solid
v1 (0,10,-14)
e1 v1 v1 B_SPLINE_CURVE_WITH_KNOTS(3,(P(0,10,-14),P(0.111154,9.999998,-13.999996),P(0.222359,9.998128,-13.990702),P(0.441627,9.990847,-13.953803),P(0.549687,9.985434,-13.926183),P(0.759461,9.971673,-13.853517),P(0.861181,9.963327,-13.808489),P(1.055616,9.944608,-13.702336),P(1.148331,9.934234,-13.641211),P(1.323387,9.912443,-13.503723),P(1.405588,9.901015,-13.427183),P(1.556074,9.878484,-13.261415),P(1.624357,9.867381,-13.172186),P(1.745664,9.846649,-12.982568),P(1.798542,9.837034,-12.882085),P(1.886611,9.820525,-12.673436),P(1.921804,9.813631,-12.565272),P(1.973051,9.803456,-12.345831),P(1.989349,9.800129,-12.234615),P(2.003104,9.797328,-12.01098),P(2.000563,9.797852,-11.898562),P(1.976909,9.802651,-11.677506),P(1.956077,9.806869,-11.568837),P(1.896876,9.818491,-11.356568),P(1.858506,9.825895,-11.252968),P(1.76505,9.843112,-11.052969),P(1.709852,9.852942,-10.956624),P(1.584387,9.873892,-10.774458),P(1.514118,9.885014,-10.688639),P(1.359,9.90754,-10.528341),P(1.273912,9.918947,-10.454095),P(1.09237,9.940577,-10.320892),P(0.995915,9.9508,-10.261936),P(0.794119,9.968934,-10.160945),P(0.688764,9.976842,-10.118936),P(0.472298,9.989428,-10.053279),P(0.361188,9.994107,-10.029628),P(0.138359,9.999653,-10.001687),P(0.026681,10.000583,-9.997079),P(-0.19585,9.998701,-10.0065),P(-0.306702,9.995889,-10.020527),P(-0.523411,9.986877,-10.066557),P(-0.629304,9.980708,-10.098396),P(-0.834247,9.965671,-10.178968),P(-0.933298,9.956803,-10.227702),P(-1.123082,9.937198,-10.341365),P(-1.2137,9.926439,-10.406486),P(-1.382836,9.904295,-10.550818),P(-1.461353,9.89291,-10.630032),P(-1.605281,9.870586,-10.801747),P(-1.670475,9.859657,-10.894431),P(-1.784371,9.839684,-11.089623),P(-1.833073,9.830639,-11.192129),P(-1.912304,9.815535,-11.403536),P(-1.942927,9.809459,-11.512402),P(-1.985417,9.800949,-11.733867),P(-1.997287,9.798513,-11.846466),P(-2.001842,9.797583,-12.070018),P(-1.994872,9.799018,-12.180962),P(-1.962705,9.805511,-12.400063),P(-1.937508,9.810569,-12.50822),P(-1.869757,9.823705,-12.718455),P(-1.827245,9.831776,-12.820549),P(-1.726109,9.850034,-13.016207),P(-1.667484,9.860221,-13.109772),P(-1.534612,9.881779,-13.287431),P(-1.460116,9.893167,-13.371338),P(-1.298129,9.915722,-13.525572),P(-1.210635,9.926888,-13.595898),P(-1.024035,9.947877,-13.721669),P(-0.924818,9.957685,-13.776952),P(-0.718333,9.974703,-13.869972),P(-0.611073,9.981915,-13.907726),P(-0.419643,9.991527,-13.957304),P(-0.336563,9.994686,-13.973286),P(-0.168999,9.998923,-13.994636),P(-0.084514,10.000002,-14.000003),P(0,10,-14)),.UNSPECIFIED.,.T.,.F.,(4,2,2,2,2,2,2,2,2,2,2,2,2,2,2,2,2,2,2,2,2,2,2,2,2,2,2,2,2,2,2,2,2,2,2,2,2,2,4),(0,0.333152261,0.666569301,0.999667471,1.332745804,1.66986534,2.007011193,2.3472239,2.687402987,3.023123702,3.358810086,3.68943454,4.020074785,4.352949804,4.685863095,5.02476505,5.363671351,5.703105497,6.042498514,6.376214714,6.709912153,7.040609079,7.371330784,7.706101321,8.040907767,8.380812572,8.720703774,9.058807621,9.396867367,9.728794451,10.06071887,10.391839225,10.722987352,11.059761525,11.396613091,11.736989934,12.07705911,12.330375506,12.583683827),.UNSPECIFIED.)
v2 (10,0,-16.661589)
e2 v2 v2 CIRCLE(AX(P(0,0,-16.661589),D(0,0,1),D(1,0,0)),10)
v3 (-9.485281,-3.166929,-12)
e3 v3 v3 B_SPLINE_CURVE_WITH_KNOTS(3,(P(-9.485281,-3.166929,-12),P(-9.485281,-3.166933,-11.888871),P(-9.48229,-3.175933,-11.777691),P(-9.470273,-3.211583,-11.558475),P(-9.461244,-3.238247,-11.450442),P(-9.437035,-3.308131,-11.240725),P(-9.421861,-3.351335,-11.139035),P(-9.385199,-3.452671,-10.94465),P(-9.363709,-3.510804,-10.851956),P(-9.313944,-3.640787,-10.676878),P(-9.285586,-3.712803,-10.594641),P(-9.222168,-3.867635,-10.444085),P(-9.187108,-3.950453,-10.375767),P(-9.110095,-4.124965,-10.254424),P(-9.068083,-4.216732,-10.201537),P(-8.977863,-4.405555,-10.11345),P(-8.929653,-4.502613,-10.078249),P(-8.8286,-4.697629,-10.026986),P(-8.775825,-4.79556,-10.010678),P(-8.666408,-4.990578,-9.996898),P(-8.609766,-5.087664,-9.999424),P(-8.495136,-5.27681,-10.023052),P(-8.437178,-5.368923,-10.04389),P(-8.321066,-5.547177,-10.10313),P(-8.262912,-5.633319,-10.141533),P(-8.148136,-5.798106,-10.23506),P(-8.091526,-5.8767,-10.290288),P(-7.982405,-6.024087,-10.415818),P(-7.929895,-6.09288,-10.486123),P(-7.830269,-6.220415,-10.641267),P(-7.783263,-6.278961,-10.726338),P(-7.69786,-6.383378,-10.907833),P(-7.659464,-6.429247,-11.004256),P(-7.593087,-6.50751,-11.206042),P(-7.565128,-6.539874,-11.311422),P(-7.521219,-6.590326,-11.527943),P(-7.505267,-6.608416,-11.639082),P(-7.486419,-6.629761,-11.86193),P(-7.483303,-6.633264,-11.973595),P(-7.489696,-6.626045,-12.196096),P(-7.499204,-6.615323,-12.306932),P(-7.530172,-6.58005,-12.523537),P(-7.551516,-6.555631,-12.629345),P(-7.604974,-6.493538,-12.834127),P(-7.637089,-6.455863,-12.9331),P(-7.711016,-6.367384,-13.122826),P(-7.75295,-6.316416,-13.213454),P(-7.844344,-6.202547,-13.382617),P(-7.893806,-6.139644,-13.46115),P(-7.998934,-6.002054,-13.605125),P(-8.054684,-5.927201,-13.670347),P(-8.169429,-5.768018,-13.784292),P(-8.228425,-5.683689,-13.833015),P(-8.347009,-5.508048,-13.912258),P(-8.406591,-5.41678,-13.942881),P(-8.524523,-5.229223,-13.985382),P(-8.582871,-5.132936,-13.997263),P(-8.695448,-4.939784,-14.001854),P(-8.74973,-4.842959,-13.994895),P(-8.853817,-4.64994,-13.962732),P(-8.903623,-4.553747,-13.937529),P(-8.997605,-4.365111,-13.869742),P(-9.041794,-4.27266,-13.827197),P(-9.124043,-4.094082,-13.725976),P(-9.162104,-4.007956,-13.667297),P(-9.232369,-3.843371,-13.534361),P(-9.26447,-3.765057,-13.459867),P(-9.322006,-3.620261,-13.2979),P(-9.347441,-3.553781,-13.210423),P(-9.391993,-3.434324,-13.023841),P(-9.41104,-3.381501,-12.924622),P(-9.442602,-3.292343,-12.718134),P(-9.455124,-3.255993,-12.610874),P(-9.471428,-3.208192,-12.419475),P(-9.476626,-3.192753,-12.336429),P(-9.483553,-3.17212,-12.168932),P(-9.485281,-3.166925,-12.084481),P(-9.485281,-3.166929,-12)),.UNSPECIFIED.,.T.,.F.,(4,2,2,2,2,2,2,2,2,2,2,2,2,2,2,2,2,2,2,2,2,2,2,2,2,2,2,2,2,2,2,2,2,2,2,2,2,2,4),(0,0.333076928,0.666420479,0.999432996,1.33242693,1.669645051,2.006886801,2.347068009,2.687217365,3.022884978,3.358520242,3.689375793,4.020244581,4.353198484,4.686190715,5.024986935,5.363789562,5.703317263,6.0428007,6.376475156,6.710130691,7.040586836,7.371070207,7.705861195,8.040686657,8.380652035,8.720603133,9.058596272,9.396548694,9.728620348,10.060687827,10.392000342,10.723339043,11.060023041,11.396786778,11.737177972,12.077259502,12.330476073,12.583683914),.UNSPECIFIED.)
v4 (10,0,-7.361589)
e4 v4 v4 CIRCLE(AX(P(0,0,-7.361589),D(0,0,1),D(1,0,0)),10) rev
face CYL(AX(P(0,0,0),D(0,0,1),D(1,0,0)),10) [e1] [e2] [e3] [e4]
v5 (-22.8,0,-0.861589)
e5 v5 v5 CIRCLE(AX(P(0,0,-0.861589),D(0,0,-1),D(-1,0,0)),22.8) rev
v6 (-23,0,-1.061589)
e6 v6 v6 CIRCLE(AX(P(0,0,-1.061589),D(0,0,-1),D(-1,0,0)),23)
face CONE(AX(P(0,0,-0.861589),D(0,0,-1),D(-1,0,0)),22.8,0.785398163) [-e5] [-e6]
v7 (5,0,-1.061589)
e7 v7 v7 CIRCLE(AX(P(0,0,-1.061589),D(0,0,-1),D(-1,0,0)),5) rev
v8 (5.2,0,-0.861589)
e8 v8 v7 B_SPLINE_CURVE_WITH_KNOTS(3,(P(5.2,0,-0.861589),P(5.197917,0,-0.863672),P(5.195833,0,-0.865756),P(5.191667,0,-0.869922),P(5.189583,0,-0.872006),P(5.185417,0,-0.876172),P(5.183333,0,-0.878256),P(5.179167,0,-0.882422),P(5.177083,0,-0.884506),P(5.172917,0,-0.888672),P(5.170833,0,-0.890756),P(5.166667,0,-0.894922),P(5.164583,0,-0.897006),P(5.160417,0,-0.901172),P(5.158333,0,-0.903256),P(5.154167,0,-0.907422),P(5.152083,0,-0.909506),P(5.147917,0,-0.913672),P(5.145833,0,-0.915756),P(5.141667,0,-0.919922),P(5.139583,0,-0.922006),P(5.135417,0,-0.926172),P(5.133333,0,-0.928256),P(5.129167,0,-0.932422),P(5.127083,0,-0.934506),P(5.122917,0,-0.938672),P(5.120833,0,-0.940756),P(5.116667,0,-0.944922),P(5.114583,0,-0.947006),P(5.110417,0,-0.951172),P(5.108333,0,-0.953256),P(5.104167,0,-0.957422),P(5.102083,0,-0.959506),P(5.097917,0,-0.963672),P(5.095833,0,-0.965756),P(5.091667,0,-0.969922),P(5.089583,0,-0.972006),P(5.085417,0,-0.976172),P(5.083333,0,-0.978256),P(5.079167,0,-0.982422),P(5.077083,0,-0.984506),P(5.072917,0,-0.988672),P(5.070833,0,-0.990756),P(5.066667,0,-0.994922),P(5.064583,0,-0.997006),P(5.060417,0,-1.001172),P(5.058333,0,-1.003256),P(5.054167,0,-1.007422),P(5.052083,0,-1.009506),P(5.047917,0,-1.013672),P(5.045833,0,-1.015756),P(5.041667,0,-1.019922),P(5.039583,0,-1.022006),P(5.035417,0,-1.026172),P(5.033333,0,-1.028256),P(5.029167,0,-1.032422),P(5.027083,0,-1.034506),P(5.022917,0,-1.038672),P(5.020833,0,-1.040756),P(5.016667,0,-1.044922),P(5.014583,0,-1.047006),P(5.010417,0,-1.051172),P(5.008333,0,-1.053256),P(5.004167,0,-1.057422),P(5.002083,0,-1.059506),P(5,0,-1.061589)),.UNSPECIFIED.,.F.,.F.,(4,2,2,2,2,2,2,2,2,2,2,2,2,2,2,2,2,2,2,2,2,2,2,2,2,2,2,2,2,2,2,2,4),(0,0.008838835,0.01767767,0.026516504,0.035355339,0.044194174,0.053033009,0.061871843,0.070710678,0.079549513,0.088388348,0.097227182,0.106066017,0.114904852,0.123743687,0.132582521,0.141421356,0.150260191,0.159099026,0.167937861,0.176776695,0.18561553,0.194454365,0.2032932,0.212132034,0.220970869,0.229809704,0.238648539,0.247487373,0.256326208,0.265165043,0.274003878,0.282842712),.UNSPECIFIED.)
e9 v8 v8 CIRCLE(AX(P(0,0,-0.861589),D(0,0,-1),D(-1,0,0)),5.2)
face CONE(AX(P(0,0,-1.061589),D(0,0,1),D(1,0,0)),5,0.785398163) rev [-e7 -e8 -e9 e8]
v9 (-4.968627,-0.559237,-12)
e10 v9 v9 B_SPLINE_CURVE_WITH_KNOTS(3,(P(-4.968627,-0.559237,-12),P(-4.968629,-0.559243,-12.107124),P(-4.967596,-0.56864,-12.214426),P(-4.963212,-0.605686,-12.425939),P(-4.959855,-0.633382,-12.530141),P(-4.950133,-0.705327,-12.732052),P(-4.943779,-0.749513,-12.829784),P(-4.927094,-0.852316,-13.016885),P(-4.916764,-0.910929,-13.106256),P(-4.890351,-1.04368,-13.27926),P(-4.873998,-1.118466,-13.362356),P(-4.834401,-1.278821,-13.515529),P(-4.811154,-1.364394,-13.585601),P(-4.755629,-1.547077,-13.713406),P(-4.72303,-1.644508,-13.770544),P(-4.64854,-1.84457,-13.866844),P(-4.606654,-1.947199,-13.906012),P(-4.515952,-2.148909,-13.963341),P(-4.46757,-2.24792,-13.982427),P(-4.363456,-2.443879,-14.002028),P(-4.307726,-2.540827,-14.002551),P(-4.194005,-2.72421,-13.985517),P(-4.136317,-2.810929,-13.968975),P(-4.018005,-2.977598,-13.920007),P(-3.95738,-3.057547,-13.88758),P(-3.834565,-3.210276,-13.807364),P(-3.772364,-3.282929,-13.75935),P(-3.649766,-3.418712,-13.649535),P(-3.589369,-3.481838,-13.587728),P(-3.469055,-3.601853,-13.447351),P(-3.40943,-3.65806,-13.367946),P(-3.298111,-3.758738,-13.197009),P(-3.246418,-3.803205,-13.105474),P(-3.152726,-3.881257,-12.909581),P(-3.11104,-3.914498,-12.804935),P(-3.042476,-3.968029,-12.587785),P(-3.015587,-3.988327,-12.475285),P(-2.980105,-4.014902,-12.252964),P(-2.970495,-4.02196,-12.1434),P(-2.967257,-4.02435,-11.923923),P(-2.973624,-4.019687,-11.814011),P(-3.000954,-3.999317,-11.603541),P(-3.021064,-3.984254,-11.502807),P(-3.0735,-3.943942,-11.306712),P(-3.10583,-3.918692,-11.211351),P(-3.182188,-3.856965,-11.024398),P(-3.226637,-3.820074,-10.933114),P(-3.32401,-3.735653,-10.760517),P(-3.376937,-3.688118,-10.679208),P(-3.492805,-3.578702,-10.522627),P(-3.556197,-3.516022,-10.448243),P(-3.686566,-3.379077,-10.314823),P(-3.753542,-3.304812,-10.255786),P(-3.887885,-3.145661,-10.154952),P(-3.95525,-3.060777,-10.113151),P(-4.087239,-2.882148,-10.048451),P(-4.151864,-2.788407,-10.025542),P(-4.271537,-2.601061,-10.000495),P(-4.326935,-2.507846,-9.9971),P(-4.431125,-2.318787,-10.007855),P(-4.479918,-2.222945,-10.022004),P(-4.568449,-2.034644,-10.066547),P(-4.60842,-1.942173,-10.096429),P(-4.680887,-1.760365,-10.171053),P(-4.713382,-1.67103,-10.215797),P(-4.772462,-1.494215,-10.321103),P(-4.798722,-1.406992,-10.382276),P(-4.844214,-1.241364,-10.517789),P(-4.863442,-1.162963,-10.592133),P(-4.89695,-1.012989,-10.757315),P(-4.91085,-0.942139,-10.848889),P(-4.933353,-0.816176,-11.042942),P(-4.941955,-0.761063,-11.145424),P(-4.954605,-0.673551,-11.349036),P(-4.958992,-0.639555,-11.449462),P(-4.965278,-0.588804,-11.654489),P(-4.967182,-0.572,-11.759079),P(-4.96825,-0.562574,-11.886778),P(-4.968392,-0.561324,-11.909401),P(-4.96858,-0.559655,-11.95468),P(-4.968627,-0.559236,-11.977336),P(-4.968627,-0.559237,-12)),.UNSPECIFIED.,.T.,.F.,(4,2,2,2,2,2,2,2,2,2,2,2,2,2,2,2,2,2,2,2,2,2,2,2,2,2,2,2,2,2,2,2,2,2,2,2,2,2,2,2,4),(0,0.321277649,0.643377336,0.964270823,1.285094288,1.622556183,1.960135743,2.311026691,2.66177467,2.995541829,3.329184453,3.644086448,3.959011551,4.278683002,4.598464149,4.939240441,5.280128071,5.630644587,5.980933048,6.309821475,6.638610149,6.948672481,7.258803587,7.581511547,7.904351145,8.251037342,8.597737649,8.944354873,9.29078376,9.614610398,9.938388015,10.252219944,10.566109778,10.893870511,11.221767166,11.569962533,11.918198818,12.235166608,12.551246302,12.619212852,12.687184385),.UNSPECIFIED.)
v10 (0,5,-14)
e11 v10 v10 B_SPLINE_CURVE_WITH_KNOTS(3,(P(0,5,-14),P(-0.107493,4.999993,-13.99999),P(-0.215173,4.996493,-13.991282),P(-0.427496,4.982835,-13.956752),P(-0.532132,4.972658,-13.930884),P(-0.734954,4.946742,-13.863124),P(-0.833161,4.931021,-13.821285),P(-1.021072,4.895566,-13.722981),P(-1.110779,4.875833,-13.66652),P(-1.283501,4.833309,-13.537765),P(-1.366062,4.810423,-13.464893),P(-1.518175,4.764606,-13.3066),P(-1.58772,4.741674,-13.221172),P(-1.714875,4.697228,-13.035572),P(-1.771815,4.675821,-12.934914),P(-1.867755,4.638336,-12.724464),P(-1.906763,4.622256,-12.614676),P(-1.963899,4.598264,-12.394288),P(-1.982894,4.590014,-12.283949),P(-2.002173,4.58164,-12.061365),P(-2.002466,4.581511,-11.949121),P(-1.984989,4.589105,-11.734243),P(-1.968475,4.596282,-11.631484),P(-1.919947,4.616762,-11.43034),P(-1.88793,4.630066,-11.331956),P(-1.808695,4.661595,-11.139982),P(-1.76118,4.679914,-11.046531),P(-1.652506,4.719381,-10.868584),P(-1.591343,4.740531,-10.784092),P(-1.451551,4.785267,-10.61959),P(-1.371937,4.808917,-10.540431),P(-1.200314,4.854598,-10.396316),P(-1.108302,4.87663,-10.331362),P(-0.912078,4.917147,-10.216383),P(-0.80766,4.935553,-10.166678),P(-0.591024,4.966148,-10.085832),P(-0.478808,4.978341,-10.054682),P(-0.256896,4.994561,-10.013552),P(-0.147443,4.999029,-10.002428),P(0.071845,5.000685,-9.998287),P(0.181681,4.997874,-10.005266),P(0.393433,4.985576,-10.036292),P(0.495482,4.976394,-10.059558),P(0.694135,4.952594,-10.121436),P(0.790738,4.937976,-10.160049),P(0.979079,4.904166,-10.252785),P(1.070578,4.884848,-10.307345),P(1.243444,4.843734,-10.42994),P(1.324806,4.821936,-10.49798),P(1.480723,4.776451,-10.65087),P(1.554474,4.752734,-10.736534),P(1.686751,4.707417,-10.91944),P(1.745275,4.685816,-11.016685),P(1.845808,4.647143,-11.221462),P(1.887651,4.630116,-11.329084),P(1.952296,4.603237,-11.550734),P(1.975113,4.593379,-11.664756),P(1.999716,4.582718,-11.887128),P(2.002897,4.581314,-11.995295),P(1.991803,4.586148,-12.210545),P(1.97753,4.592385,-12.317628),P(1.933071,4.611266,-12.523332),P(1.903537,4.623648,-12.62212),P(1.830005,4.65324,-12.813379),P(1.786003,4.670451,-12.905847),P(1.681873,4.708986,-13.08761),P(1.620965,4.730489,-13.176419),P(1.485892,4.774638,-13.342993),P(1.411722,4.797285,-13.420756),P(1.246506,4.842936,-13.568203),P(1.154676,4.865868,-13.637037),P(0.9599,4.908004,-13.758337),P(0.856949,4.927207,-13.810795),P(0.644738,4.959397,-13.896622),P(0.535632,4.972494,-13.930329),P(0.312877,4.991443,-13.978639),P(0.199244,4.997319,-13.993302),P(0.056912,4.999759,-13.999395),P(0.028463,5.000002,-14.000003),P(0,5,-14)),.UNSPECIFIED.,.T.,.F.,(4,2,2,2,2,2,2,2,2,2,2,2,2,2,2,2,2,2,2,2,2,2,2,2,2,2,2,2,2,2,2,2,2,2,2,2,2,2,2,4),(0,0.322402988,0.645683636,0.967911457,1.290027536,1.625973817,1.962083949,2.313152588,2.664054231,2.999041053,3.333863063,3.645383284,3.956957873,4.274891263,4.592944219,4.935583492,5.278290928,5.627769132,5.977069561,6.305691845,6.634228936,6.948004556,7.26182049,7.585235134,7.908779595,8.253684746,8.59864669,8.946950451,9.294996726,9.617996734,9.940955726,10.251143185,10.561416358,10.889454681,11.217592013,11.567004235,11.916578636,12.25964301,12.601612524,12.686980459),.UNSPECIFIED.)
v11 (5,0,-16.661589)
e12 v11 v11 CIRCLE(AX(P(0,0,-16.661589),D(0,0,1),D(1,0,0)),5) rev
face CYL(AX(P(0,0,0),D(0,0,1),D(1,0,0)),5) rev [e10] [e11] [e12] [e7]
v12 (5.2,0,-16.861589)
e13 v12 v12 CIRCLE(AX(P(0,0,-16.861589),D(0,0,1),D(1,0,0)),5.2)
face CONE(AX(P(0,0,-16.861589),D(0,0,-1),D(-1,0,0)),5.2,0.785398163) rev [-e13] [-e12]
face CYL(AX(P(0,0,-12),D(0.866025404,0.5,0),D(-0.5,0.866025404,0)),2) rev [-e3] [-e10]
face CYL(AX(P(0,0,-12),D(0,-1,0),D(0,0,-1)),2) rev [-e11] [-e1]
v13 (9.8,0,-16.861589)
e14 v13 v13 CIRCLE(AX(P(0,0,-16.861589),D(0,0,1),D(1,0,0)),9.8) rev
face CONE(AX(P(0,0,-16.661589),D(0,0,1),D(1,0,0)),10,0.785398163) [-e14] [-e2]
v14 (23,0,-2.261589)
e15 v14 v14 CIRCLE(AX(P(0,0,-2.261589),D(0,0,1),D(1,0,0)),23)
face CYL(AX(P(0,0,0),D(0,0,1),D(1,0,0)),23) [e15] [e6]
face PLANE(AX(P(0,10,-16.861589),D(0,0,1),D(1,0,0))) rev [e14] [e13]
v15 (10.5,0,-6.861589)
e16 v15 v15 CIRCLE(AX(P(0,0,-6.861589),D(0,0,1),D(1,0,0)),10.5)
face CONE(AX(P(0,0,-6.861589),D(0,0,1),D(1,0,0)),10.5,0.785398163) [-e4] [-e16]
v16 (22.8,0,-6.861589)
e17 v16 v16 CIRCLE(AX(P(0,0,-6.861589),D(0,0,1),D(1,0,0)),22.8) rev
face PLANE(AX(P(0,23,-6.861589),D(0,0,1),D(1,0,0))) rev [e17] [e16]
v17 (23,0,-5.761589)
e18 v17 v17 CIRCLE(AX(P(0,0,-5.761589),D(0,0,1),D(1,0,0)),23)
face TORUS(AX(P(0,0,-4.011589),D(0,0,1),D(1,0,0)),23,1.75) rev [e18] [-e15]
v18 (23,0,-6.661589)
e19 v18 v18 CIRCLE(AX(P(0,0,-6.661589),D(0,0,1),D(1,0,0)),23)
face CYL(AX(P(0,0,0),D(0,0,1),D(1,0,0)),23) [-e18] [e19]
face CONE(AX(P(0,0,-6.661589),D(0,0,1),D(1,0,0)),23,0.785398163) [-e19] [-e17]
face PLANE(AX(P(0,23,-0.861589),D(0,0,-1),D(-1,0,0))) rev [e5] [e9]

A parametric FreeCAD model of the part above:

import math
import FreeCAD as App
import Part
import Sketcher

V = App.Vector


def edges_at(feature, points):
    """Names of the edges that pass closest to the given points."""
    edges = feature.Shape.Edges
    near = lambda p: min(range(len(edges)), key=lambda i: edges[i].distToShape(Part.Vertex(*p))[0])
    return sorted({f"Edge{near(p) + 1}" for p in points})

doc = App.newDocument("Part")
body = doc.addObject("PartDesign::Body", "Body")

sketch1 = body.newObject("Sketcher::SketchObject", "Sketch")
sketch1.AttachmentSupport = (doc.getObject("YZ_Plane"), [""])
sketch1.MapMode = "FlatFace"
sketch1.addGeometry(Part.LineSegment(V(5, -0.9, 0), V(5, -16.9, 0)), False)
sketch1.addGeometry(Part.LineSegment(V(5, -16.9, 0), V(10, -16.9, 0)), False)
sketch1.addGeometry(Part.LineSegment(V(10, -16.9, 0), V(10, -6.9, 0)), False)
sketch1.addGeometry(Part.LineSegment(V(10, -6.9, 0), V(23, -6.9, 0)), False)
sketch1.addGeometry(Part.LineSegment(V(23, -6.9, 0), V(23, -5.8, 0)), False)
sketch1.addGeometry(Part.ArcOfCircle(Part.Circle(V(23, -4, 0), V(0, 0, 1), 1.8), math.radians(90), math.radians(270)), False)
sketch1.addGeometry(Part.LineSegment(V(23, -2.3, 0), V(23, -0.9, 0)), False)
sketch1.addGeometry(Part.LineSegment(V(23, -0.9, 0), V(5, -0.9, 0)), False)
sketch1.addConstraint(Sketcher.Constraint("Coincident", 0, 2, 1, 1))
sketch1.addConstraint(Sketcher.Constraint("Coincident", 1, 2, 2, 1))
sketch1.addConstraint(Sketcher.Constraint("Coincident", 2, 2, 3, 1))
sketch1.addConstraint(Sketcher.Constraint("Coincident", 3, 2, 4, 1))
sketch1.addConstraint(Sketcher.Constraint("Coincident", 4, 2, 5, 2))
sketch1.addConstraint(Sketcher.Constraint("Coincident", 5, 1, 6, 1))
sketch1.addConstraint(Sketcher.Constraint("Coincident", 6, 2, 7, 1))
sketch1.addConstraint(Sketcher.Constraint("Coincident", 7, 2, 0, 1))
sketch1.addConstraint(Sketcher.Constraint("Vertical", 0))
sketch1.addConstraint(Sketcher.Constraint("Horizontal", 1))
sketch1.addConstraint(Sketcher.Constraint("Vertical", 2))
sketch1.addConstraint(Sketcher.Constraint("Horizontal", 3))
sketch1.addConstraint(Sketcher.Constraint("Vertical", 4))
sketch1.addConstraint(Sketcher.Constraint("Vertical", 6))
sketch1.addConstraint(Sketcher.Constraint("Horizontal", 7))
sketch1.addConstraint(Sketcher.Constraint("Vertical", 5, 3, 3, 2))
sketch1.addConstraint(Sketcher.Constraint("Vertical", 4, 2, 5, 1))
sketch1.addConstraint(Sketcher.Constraint("DistanceX", 1, 1, 1, 2, 5.0))
sketch1.addConstraint(Sketcher.Constraint("DistanceX", 3, 1, 3, 2, 13.0))
sketch1.addConstraint(Sketcher.Constraint("DistanceY", 0, 2, 0, 1, 16.0))
sketch1.addConstraint(Sketcher.Constraint("DistanceY", 2, 1, 2, 2, 10.0))
sketch1.addConstraint(Sketcher.Constraint("Radius", 5, 1.75))
sketch1.addConstraint(Sketcher.Constraint("DistanceY", 4, 1, 4, 2, 1.1))
sketch1.addConstraint(Sketcher.Constraint("DistanceX", -1, 1, 5, 3, 23.0))
sketch1.addConstraint(Sketcher.Constraint("DistanceY", 5, 3, -1, 1, 4.011589))
revolution = body.newObject("PartDesign::Revolution", "Revolution")
revolution.Profile = sketch1
revolution.ReferenceAxis = (sketch1, ["V_Axis"])
revolution.Angle = 360

sketch2 = body.newObject("Sketcher::SketchObject", "Sketch001")
sketch2.AttachmentSupport = (doc.getObject("YZ_Plane"), [""])
sketch2.MapMode = "FlatFace"
sketch2.addGeometry(Part.LineSegment(V(31.4, -12, 0), V(0, -12, 0)), False)
sketch2.addGeometry(Part.LineSegment(V(0, -12, 0), V(0, -14, 0)), False)
sketch2.addGeometry(Part.LineSegment(V(0, -14, 0), V(31.4, -14, 0)), False)
sketch2.addGeometry(Part.LineSegment(V(31.4, -14, 0), V(31.4, -12, 0)), False)
sketch2.addGeometry(Part.LineSegment(V(0, -12, 0), V(31.4, -12, 0)), True)
sketch2.addConstraint(Sketcher.Constraint("Coincident", 0, 2, 1, 1))
sketch2.addConstraint(Sketcher.Constraint("Coincident", 1, 2, 2, 1))
sketch2.addConstraint(Sketcher.Constraint("Coincident", 2, 2, 3, 1))
sketch2.addConstraint(Sketcher.Constraint("Coincident", 3, 2, 0, 1))
sketch2.addConstraint(Sketcher.Constraint("Horizontal", 0))
sketch2.addConstraint(Sketcher.Constraint("Vertical", 1))
sketch2.addConstraint(Sketcher.Constraint("Horizontal", 2))
sketch2.addConstraint(Sketcher.Constraint("Vertical", 3))
sketch2.addConstraint(Sketcher.Constraint("Horizontal", 4))
sketch2.addConstraint(Sketcher.Constraint("Coincident", 4, 1, 0, 2))
sketch2.addConstraint(Sketcher.Constraint("PointOnObject", 0, 2, -2))
sketch2.addConstraint(Sketcher.Constraint("Vertical", 2, 2, 4, 2))
sketch2.addConstraint(Sketcher.Constraint("DistanceY", 1, 2, 1, 1, 2.0))
sketch2.addConstraint(Sketcher.Constraint("DistanceY", 0, 2, -1, 1, 12.0))
sketch2.addConstraint(Sketcher.Constraint("DistanceX", 0, 2, 0, 1, 31.418584))
groove = body.newObject("PartDesign::Groove", "Groove")
groove.Profile = sketch2
groove.ReferenceAxis = (sketch2, ["Axis0"])
groove.Angle = 360
doc.recompute()

polarpattern = body.newObject("PartDesign::PolarPattern", "PolarPattern")
polarpattern.Originals = [groove]
polarpattern.Axis = (doc.getObject("Z_Axis"), [""])
polarpattern.Angle = 120
polarpattern.Occurrences = 2
body.Tip = polarpattern
doc.recompute()

chamfer = body.newObject("PartDesign::Chamfer", "Chamfer")
chamfer.Base = (polarpattern, edges_at(polarpattern, [
    (-23, 0, -0.862),
    (-23, 0, -6.862),
    (-10, 0, -16.862),
    (-5, 0, -16.862),
    (-5, 0, -0.862),
]))
chamfer.Size = 0.2
doc.recompute()

chamfer2 = body.newObject("PartDesign::Chamfer", "Chamfer001")
chamfer2.Base = (chamfer, edges_at(chamfer, [(-10, 0, -6.862)]))
chamfer2.Size = 0.5

doc.recompute()
